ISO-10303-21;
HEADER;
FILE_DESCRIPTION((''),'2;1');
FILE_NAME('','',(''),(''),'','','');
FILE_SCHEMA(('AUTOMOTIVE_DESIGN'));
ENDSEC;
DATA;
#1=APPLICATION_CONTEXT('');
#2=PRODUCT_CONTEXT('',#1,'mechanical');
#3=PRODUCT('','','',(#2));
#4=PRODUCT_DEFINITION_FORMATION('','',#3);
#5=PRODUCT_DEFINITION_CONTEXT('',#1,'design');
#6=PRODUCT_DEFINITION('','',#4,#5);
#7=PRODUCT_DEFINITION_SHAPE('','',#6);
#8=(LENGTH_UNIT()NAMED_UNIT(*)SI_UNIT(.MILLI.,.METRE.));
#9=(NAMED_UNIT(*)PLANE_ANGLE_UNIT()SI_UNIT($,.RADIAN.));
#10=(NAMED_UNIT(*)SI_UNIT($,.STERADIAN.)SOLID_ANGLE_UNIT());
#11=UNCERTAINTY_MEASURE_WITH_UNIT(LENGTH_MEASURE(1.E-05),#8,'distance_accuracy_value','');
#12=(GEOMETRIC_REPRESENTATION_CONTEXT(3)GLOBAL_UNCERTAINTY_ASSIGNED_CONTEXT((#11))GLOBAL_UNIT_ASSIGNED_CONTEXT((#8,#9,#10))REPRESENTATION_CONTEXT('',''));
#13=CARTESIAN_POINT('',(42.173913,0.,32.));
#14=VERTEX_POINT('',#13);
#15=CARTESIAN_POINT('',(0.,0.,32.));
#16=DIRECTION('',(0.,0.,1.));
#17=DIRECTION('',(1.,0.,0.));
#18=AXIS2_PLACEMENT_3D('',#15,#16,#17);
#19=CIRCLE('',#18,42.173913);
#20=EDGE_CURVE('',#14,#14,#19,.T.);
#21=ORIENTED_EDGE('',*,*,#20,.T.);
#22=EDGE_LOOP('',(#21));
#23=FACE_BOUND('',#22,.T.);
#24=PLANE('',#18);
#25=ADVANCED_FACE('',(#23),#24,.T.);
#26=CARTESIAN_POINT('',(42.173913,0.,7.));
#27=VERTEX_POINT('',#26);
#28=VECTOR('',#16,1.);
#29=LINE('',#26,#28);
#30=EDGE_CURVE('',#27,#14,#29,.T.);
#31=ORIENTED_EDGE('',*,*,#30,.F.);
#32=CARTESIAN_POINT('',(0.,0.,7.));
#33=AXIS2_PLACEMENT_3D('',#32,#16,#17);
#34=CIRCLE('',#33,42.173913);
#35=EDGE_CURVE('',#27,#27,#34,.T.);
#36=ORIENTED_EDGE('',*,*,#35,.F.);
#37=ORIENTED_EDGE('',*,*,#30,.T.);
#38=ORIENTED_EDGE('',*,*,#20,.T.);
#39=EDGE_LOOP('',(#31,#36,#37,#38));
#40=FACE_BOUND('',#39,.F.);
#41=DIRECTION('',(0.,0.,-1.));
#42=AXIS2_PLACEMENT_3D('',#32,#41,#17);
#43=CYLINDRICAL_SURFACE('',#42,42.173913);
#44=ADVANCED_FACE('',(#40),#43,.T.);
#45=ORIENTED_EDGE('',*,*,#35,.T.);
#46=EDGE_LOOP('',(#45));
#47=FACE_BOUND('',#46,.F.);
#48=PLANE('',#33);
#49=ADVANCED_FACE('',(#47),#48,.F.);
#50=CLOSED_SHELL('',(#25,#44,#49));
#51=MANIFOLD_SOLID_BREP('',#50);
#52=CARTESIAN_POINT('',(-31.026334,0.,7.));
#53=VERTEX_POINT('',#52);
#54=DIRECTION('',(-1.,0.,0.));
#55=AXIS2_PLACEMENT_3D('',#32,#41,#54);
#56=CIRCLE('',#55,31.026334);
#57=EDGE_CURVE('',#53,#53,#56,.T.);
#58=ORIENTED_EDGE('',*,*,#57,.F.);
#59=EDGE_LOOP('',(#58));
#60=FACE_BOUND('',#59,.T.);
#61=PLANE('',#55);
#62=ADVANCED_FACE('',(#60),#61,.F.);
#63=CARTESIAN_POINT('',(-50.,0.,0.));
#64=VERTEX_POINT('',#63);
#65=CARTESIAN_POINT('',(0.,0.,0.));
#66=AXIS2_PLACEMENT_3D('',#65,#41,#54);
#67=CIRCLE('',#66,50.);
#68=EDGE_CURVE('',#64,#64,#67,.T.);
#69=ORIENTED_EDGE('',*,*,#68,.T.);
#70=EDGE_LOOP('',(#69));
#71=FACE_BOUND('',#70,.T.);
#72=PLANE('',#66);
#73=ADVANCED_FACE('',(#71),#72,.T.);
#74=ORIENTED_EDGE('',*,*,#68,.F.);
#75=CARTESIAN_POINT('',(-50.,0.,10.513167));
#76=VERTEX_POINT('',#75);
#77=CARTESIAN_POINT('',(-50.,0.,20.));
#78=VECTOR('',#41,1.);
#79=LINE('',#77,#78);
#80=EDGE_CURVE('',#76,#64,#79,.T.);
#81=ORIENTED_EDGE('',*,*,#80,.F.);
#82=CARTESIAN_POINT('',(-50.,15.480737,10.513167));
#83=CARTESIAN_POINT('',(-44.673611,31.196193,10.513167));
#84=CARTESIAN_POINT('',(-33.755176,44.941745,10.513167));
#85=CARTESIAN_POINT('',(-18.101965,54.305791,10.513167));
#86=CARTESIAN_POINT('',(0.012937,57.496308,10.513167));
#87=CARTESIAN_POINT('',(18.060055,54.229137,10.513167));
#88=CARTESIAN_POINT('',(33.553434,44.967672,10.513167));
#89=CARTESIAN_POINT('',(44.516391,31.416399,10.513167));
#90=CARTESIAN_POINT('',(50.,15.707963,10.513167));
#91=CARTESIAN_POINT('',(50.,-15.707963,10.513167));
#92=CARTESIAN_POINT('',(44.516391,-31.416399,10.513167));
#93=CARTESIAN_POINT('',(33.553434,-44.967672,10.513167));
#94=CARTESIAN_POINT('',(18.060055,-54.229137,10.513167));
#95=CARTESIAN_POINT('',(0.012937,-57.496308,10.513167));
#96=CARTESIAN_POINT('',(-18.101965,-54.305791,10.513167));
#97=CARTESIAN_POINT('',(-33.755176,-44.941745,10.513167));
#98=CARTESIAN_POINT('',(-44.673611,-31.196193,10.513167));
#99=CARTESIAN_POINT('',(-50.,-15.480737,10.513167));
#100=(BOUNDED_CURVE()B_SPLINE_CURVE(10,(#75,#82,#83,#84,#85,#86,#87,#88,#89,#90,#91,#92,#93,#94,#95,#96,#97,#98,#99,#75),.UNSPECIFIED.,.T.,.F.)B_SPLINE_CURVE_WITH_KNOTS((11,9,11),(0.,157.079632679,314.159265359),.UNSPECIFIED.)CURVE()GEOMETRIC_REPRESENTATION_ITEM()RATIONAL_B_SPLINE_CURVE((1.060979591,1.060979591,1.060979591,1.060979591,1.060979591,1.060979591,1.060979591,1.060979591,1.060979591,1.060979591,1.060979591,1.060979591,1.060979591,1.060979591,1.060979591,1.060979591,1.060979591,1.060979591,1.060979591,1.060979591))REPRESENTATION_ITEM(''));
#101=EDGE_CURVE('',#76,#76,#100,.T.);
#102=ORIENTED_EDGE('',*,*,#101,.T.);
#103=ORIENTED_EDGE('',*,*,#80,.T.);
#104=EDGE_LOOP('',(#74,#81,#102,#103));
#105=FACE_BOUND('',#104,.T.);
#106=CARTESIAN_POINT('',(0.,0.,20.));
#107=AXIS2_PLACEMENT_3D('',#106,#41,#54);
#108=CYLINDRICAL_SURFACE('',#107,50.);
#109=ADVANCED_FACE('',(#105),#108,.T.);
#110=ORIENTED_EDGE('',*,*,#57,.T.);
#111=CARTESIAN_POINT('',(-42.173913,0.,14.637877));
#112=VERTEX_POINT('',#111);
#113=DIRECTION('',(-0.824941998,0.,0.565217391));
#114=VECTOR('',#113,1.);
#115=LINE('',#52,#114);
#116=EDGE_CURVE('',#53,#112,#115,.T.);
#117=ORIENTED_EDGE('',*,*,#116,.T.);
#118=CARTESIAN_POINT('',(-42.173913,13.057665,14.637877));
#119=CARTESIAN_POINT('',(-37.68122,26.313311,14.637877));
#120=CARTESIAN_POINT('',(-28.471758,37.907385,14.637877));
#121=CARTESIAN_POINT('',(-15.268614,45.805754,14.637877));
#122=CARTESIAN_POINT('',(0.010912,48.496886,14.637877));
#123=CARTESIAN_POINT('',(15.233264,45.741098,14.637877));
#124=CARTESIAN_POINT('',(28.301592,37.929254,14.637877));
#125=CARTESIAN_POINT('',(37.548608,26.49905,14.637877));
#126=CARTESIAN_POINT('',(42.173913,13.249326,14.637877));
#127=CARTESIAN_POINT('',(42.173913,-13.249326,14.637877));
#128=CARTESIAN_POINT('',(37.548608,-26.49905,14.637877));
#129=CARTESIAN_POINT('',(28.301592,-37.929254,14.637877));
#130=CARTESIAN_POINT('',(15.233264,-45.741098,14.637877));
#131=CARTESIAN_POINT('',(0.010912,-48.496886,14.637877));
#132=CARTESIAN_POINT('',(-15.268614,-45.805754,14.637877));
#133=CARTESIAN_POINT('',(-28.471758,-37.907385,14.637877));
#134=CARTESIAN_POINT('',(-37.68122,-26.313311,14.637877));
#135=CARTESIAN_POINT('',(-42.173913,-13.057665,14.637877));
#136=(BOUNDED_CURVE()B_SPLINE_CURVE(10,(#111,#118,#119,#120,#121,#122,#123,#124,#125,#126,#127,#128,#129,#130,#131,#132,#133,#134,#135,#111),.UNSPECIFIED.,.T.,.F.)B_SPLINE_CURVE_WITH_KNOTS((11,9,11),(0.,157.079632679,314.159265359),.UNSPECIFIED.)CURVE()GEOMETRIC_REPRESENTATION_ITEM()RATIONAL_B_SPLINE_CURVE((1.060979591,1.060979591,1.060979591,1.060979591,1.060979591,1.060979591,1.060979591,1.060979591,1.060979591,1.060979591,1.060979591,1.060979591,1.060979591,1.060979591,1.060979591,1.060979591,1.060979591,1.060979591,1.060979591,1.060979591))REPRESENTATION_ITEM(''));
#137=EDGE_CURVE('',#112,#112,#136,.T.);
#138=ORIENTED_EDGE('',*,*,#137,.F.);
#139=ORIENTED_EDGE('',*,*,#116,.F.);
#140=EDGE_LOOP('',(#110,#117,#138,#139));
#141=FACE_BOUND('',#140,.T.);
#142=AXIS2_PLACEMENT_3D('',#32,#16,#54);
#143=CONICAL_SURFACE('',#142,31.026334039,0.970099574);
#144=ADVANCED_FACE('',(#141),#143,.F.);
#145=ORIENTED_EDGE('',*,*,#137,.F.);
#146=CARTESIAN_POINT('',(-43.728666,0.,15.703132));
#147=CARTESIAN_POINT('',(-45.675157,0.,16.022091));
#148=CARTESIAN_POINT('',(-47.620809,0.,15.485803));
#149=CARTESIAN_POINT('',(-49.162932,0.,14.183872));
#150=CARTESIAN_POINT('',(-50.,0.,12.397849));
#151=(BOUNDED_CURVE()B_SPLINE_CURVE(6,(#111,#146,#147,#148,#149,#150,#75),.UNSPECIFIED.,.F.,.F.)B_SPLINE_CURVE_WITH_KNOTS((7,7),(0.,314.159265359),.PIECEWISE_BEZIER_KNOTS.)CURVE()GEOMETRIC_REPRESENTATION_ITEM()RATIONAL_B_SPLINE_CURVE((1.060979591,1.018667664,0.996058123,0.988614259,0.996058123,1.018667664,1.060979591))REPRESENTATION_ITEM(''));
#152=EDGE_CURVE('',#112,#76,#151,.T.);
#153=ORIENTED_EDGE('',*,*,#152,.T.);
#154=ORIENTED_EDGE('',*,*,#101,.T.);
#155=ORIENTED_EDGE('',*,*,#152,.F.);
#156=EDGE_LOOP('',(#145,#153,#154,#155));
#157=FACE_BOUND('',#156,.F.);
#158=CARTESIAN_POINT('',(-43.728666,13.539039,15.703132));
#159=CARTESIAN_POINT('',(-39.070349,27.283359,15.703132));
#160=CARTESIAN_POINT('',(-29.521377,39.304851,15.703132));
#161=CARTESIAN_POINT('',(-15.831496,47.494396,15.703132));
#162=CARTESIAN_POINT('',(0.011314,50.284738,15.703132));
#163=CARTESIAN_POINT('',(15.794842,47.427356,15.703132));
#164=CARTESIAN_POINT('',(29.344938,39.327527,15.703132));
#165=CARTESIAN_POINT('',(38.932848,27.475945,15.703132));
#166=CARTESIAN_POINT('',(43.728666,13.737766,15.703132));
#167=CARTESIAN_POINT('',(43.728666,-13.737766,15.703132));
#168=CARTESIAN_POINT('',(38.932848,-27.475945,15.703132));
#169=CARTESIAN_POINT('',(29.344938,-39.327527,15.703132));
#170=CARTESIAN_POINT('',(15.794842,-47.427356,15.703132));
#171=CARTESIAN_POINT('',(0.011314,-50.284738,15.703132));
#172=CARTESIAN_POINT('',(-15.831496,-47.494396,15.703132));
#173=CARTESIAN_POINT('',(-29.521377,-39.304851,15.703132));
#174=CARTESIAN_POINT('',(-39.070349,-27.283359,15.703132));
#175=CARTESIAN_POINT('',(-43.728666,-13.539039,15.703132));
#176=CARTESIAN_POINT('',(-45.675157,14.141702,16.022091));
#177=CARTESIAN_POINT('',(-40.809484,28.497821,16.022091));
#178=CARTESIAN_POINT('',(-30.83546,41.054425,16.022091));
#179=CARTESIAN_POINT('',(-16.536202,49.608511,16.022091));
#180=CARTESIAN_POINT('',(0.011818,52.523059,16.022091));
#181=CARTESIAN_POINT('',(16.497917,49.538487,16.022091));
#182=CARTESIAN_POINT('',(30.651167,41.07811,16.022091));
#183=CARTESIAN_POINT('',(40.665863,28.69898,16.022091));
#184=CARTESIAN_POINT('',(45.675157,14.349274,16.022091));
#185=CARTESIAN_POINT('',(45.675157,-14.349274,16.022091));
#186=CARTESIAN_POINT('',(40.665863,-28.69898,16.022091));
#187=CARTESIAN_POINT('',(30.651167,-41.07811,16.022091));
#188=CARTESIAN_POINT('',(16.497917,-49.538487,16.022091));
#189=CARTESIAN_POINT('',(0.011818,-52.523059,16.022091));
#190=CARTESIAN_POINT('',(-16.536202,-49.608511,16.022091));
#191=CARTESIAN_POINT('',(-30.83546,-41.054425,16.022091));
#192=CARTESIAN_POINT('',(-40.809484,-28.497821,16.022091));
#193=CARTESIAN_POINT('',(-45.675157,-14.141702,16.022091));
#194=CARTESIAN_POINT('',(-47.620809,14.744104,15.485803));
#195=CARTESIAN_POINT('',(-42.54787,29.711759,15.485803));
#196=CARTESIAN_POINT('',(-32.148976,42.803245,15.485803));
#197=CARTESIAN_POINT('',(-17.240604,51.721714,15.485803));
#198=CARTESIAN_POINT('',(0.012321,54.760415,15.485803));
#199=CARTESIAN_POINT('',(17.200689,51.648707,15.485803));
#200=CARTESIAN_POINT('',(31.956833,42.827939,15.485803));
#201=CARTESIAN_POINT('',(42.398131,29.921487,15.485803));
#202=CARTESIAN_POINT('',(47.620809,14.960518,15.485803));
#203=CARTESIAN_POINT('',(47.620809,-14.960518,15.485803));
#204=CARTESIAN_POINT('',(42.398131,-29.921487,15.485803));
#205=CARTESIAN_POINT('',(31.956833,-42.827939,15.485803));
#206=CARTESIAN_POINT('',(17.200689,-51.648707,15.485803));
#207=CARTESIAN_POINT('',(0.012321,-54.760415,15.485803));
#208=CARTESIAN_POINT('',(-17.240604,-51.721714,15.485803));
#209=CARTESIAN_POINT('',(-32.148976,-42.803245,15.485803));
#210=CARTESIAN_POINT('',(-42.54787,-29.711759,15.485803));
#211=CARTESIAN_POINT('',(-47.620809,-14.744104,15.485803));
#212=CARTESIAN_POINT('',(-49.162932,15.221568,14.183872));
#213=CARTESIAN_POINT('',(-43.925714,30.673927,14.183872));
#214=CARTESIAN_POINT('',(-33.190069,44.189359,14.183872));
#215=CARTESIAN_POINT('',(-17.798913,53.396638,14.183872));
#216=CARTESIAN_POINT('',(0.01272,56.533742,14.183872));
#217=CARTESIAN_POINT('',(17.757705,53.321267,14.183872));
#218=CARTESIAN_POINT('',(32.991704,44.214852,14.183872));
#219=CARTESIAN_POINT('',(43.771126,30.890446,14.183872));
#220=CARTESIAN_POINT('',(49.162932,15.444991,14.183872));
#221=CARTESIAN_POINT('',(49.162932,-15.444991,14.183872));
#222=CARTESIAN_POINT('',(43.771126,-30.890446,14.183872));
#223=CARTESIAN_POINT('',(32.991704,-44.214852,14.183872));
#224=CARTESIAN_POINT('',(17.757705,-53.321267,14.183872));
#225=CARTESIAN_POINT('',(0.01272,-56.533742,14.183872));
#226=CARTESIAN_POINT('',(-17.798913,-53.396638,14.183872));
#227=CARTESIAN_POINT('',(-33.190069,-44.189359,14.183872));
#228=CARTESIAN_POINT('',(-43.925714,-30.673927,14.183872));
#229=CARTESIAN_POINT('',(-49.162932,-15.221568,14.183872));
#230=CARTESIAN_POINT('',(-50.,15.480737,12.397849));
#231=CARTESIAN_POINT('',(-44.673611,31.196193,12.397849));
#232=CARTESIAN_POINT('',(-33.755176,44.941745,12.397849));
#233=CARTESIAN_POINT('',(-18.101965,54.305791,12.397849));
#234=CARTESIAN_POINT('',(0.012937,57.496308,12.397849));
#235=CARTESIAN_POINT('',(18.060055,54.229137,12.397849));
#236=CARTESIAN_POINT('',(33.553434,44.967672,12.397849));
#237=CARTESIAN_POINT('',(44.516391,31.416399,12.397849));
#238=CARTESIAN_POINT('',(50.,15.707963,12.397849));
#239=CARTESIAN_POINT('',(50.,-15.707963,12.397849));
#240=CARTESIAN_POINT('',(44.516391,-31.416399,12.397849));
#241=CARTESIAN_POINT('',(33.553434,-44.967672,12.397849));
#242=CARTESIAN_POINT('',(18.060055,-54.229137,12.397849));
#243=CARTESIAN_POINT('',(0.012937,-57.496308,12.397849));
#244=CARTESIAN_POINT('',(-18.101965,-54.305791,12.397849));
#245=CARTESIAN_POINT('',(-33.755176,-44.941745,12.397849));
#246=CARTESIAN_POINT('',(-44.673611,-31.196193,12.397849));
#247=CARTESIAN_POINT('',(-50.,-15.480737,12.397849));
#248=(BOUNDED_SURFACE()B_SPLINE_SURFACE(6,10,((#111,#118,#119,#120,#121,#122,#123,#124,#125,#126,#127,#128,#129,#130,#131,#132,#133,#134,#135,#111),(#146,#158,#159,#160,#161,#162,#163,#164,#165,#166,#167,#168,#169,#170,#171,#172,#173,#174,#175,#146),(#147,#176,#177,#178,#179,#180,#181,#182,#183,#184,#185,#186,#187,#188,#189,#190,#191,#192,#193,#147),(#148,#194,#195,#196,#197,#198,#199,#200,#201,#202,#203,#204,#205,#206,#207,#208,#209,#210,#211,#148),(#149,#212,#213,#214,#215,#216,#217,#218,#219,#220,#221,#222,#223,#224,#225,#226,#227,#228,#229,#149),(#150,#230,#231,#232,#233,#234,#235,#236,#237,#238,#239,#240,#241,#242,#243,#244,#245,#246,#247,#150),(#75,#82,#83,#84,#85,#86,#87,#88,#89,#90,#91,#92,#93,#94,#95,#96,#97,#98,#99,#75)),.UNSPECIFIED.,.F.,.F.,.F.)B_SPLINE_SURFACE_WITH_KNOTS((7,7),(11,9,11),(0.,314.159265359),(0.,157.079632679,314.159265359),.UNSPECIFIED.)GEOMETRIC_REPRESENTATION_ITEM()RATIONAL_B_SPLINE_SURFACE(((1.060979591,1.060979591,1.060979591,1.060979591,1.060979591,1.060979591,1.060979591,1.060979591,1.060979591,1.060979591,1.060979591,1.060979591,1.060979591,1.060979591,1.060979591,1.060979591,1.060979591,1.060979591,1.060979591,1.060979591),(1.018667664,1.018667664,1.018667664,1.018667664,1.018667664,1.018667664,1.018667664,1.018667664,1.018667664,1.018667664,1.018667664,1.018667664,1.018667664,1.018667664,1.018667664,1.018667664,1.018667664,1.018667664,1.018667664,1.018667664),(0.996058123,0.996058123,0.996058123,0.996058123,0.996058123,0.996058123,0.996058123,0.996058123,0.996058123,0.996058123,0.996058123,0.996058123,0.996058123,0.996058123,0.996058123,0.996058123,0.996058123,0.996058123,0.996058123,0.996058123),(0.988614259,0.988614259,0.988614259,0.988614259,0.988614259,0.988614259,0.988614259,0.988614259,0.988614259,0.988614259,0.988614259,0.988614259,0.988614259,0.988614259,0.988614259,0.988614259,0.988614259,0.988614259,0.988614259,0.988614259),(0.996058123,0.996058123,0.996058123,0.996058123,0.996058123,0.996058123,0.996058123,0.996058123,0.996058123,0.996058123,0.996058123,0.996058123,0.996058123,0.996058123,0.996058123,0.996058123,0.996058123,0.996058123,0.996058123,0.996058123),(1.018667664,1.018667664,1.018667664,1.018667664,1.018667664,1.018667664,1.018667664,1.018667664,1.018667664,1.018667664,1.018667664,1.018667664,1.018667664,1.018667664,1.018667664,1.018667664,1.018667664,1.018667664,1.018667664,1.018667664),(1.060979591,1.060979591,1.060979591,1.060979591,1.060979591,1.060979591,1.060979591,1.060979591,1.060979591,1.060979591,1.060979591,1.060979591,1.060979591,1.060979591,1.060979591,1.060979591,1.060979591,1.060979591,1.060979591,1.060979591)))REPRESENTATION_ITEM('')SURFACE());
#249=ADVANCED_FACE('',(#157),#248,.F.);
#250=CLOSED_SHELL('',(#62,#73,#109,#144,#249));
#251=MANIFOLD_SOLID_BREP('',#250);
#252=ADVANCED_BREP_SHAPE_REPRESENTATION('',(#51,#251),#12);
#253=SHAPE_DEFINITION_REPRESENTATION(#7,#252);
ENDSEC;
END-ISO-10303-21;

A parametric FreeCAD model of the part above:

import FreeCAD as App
import Part
import Sketcher
from FreeCAD import Vector
Q = App.Units.Quantity


def edges_at(feature, points):
    """Names of the edges that pass closest to the given points."""
    edges = feature.Shape.Edges
    near = lambda p: min(range(len(edges)), key=lambda i: edges[i].distToShape(Part.Vertex(*p))[0])
    return sorted({f"Edge{near(p) + 1}" for p in points})

doc = App.newDocument("Part")
params = doc.addObject("Spreadsheet::Sheet", "Params")
for row, (alias, value) in enumerate([
    ("sketch1_width", "50 mm"),
    ("sketch1_height", "7 mm"),
    ("sketch1_height2", "20 mm"),
    ("sketch1_length", "23 mm"),
    ("revolution_angle", "360 deg"),
    ("fillet_radius", "5 mm"),
    ("pad1_length", "25 mm"),
], start=1):
    params.set(f"A{row}", alias)
    params.set(f"B{row}", "=" + value)
    params.setAlias(f"B{row}", alias)

body = doc.addObject("PartDesign::Body", "Body")

# Sketch on XZ plane
sketch1 = doc.addObject("Sketcher::SketchObject", "Sketch")
body.addObject(sketch1)
sketch1.AttachmentSupport = (doc.XZ_Plane, [""])
sketch1.MapMode = "FlatFace"
sketch1.addGeometry([
    Part.LineSegment(Vector(-50, 0, 0), Vector(0, 0, 0)),  # 0
    Part.LineSegment(Vector(0, 0, 0), Vector(0, 7, 0)),  # 1
    Part.LineSegment(Vector(0, 7, 0), Vector(-31.026334, 7, 0)),  # 2
    Part.LineSegment(Vector(-31.026334, 7, 0), Vector(-50, 20, 0)),  # 3
    Part.LineSegment(Vector(-50, 20, 0), Vector(-50, 0, 0)),  # 4
], False)
sketch1.addConstraint([
    Sketcher.Constraint("Coincident", 0, 2, 1, 1),
    Sketcher.Constraint("Coincident", 1, 2, 2, 1),
    Sketcher.Constraint("Coincident", 2, 2, 3, 1),
    Sketcher.Constraint("Coincident", 3, 2, 4, 1),
    Sketcher.Constraint("Coincident", 4, 2, 0, 1),
    Sketcher.Constraint("Horizontal", 0),
    Sketcher.Constraint("Vertical", 1),
    Sketcher.Constraint("Horizontal", 2),
    Sketcher.Constraint("Vertical", 4),
    Sketcher.Constraint("Coincident", 0, 2, -1, 1),
    Sketcher.Constraint("DistanceX", 0, 1, 0, 2, Q("50 mm")),
    Sketcher.Constraint("DistanceY", 1, 1, 1, 2, Q("7 mm")),
    Sketcher.Constraint("DistanceY", 4, 2, 4, 1, Q("20 mm")),
    Sketcher.Constraint("Distance", 3, Q("23 mm")),
])
sketch1.setExpression("Constraints[10]", "Params.sketch1_width")
sketch1.setExpression("Constraints[11]", "Params.sketch1_height")
sketch1.setExpression("Constraints[12]", "Params.sketch1_height2")
sketch1.setExpression("Constraints[13]", "Params.sketch1_length")
revolution = doc.addObject("PartDesign::Revolution", "Revolution")
body.addObject(revolution)
revolution.Profile = sketch1
revolution.ReferenceAxis = (sketch1, ["V_Axis"])
revolution.setExpression("Angle", "Params.revolution_angle")
doc.recompute()

fillet = doc.addObject("PartDesign::Fillet", "Fillet")
body.addObject(fillet)
fillet.Base = (revolution, edges_at(revolution, [(50, 0, 20)]))
fillet.setExpression("Radius", "Params.fillet_radius")
body2 = doc.addObject("PartDesign::Body", "Body001")

# Sketch on XY plane
sketch2 = doc.addObject("Sketcher::SketchObject", "Sketch001")
body2.addObject(sketch2)
sketch2.AttachmentSupport = (doc.getObject("XY_Plane001"), [""])
sketch2.MapMode = "FlatFace"
sketch2.AttachmentOffset = App.Placement(Vector(0, 0, 7), App.Rotation())
sketch2.addGeometry(Part.Circle(Vector(0, 0, 0), Vector(0, 0, 1), 42.173913), False)
sketch2.addConstraint([
    Sketcher.Constraint("Coincident", 0, 3, -1, 1),
    Sketcher.Constraint("Diameter", 0, Q("84.347826 mm")),
])
pad1 = doc.addObject("PartDesign::Pad", "Pad")
body2.addObject(pad1)
pad1.Profile = sketch2
pad1.setExpression("Length", "Params.pad1_length")

doc.recompute()
